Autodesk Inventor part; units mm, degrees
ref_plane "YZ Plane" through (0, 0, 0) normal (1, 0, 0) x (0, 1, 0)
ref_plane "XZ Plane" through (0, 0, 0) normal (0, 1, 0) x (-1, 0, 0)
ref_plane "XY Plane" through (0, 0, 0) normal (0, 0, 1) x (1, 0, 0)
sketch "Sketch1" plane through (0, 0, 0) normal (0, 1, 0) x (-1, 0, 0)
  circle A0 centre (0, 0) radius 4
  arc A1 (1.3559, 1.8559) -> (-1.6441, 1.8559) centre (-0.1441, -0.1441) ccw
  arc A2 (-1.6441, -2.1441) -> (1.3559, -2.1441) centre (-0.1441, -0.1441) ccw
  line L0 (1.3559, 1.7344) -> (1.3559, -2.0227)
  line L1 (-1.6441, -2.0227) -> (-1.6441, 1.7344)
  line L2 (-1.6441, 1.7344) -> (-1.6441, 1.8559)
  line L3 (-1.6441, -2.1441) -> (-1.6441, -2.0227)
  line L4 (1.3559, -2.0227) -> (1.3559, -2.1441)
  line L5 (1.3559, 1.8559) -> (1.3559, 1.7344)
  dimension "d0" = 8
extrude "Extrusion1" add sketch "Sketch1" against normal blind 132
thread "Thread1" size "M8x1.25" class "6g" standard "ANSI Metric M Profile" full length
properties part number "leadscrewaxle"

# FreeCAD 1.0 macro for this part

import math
import FreeCAD as App
import Part
import Sketcher

V = App.Vector

doc = App.newDocument("Part")
body = doc.addObject("PartDesign::Body", "Body")

# Sketch on XZ plane
sketch1 = doc.addObject("Sketcher::SketchObject", "Sketch")
body.addObject(sketch1)
sketch1.AttachmentSupport = (doc.XZ_Plane, [""])
sketch1.MapMode = "FlatFace"
sketch1.addGeometry(Part.Circle(V(0, 0, 0), V(0, 0, 1), 4), False)
sketch1.addGeometry(Part.ArcOfCircle(Part.Circle(V(0.1441, -0.1441, 0), V(0, 0, 1), 2.5), math.radians(53.130102), math.radians(126.869898)), False)
sketch1.addGeometry(Part.LineSegment(V(-1.3559, 1.8559, 0), V(-1.3559, -2.1441, 0)), False)
sketch1.addGeometry(Part.ArcOfCircle(Part.Circle(V(0.1441, -0.1441, 0), V(0, 0, 1), 2.5), math.radians(-126.869898), math.radians(-53.130102)), False)
sketch1.addGeometry(Part.LineSegment(V(1.6441, -2.1441, 0), V(1.6441, 1.8559, 0)), False)
sketch1.addConstraint(Sketcher.Constraint("Coincident", 1, 2, 2, 1))
sketch1.addConstraint(Sketcher.Constraint("Coincident", 2, 2, 3, 1))
sketch1.addConstraint(Sketcher.Constraint("Coincident", 3, 2, 4, 1))
sketch1.addConstraint(Sketcher.Constraint("Coincident", 4, 2, 1, 1))
sketch1.addConstraint(Sketcher.Constraint("Vertical", 2))
sketch1.addConstraint(Sketcher.Constraint("Vertical", 4))
sketch1.addConstraint(Sketcher.Constraint("Coincident", 0, 3, -1, 1))
sketch1.addConstraint(Sketcher.Constraint("Coincident", 3, 3, 1, 3))
sketch1.addConstraint(Sketcher.Constraint("Equal", 1, 3))
sketch1.addConstraint(Sketcher.Constraint("Horizontal", 2, 2, 3, 2))
sketch1.addConstraint(Sketcher.Constraint("Diameter", 0, 8.0))
sketch1.addConstraint(Sketcher.Constraint("Radius", 1, 2.5))
sketch1.addConstraint(Sketcher.Constraint("DistanceY", 2, 2, 2, 1, 4.0))
sketch1.addConstraint(Sketcher.Constraint("DistanceX", -1, 1, 1, 3, 0.144))
sketch1.addConstraint(Sketcher.Constraint("DistanceY", 1, 3, -1, 1, 0.144))
pad1 = doc.addObject("PartDesign::Pad", "Pad")
body.addObject(pad1)
pad1.Profile = sketch1
pad1.Length = 132

doc.recompute()
